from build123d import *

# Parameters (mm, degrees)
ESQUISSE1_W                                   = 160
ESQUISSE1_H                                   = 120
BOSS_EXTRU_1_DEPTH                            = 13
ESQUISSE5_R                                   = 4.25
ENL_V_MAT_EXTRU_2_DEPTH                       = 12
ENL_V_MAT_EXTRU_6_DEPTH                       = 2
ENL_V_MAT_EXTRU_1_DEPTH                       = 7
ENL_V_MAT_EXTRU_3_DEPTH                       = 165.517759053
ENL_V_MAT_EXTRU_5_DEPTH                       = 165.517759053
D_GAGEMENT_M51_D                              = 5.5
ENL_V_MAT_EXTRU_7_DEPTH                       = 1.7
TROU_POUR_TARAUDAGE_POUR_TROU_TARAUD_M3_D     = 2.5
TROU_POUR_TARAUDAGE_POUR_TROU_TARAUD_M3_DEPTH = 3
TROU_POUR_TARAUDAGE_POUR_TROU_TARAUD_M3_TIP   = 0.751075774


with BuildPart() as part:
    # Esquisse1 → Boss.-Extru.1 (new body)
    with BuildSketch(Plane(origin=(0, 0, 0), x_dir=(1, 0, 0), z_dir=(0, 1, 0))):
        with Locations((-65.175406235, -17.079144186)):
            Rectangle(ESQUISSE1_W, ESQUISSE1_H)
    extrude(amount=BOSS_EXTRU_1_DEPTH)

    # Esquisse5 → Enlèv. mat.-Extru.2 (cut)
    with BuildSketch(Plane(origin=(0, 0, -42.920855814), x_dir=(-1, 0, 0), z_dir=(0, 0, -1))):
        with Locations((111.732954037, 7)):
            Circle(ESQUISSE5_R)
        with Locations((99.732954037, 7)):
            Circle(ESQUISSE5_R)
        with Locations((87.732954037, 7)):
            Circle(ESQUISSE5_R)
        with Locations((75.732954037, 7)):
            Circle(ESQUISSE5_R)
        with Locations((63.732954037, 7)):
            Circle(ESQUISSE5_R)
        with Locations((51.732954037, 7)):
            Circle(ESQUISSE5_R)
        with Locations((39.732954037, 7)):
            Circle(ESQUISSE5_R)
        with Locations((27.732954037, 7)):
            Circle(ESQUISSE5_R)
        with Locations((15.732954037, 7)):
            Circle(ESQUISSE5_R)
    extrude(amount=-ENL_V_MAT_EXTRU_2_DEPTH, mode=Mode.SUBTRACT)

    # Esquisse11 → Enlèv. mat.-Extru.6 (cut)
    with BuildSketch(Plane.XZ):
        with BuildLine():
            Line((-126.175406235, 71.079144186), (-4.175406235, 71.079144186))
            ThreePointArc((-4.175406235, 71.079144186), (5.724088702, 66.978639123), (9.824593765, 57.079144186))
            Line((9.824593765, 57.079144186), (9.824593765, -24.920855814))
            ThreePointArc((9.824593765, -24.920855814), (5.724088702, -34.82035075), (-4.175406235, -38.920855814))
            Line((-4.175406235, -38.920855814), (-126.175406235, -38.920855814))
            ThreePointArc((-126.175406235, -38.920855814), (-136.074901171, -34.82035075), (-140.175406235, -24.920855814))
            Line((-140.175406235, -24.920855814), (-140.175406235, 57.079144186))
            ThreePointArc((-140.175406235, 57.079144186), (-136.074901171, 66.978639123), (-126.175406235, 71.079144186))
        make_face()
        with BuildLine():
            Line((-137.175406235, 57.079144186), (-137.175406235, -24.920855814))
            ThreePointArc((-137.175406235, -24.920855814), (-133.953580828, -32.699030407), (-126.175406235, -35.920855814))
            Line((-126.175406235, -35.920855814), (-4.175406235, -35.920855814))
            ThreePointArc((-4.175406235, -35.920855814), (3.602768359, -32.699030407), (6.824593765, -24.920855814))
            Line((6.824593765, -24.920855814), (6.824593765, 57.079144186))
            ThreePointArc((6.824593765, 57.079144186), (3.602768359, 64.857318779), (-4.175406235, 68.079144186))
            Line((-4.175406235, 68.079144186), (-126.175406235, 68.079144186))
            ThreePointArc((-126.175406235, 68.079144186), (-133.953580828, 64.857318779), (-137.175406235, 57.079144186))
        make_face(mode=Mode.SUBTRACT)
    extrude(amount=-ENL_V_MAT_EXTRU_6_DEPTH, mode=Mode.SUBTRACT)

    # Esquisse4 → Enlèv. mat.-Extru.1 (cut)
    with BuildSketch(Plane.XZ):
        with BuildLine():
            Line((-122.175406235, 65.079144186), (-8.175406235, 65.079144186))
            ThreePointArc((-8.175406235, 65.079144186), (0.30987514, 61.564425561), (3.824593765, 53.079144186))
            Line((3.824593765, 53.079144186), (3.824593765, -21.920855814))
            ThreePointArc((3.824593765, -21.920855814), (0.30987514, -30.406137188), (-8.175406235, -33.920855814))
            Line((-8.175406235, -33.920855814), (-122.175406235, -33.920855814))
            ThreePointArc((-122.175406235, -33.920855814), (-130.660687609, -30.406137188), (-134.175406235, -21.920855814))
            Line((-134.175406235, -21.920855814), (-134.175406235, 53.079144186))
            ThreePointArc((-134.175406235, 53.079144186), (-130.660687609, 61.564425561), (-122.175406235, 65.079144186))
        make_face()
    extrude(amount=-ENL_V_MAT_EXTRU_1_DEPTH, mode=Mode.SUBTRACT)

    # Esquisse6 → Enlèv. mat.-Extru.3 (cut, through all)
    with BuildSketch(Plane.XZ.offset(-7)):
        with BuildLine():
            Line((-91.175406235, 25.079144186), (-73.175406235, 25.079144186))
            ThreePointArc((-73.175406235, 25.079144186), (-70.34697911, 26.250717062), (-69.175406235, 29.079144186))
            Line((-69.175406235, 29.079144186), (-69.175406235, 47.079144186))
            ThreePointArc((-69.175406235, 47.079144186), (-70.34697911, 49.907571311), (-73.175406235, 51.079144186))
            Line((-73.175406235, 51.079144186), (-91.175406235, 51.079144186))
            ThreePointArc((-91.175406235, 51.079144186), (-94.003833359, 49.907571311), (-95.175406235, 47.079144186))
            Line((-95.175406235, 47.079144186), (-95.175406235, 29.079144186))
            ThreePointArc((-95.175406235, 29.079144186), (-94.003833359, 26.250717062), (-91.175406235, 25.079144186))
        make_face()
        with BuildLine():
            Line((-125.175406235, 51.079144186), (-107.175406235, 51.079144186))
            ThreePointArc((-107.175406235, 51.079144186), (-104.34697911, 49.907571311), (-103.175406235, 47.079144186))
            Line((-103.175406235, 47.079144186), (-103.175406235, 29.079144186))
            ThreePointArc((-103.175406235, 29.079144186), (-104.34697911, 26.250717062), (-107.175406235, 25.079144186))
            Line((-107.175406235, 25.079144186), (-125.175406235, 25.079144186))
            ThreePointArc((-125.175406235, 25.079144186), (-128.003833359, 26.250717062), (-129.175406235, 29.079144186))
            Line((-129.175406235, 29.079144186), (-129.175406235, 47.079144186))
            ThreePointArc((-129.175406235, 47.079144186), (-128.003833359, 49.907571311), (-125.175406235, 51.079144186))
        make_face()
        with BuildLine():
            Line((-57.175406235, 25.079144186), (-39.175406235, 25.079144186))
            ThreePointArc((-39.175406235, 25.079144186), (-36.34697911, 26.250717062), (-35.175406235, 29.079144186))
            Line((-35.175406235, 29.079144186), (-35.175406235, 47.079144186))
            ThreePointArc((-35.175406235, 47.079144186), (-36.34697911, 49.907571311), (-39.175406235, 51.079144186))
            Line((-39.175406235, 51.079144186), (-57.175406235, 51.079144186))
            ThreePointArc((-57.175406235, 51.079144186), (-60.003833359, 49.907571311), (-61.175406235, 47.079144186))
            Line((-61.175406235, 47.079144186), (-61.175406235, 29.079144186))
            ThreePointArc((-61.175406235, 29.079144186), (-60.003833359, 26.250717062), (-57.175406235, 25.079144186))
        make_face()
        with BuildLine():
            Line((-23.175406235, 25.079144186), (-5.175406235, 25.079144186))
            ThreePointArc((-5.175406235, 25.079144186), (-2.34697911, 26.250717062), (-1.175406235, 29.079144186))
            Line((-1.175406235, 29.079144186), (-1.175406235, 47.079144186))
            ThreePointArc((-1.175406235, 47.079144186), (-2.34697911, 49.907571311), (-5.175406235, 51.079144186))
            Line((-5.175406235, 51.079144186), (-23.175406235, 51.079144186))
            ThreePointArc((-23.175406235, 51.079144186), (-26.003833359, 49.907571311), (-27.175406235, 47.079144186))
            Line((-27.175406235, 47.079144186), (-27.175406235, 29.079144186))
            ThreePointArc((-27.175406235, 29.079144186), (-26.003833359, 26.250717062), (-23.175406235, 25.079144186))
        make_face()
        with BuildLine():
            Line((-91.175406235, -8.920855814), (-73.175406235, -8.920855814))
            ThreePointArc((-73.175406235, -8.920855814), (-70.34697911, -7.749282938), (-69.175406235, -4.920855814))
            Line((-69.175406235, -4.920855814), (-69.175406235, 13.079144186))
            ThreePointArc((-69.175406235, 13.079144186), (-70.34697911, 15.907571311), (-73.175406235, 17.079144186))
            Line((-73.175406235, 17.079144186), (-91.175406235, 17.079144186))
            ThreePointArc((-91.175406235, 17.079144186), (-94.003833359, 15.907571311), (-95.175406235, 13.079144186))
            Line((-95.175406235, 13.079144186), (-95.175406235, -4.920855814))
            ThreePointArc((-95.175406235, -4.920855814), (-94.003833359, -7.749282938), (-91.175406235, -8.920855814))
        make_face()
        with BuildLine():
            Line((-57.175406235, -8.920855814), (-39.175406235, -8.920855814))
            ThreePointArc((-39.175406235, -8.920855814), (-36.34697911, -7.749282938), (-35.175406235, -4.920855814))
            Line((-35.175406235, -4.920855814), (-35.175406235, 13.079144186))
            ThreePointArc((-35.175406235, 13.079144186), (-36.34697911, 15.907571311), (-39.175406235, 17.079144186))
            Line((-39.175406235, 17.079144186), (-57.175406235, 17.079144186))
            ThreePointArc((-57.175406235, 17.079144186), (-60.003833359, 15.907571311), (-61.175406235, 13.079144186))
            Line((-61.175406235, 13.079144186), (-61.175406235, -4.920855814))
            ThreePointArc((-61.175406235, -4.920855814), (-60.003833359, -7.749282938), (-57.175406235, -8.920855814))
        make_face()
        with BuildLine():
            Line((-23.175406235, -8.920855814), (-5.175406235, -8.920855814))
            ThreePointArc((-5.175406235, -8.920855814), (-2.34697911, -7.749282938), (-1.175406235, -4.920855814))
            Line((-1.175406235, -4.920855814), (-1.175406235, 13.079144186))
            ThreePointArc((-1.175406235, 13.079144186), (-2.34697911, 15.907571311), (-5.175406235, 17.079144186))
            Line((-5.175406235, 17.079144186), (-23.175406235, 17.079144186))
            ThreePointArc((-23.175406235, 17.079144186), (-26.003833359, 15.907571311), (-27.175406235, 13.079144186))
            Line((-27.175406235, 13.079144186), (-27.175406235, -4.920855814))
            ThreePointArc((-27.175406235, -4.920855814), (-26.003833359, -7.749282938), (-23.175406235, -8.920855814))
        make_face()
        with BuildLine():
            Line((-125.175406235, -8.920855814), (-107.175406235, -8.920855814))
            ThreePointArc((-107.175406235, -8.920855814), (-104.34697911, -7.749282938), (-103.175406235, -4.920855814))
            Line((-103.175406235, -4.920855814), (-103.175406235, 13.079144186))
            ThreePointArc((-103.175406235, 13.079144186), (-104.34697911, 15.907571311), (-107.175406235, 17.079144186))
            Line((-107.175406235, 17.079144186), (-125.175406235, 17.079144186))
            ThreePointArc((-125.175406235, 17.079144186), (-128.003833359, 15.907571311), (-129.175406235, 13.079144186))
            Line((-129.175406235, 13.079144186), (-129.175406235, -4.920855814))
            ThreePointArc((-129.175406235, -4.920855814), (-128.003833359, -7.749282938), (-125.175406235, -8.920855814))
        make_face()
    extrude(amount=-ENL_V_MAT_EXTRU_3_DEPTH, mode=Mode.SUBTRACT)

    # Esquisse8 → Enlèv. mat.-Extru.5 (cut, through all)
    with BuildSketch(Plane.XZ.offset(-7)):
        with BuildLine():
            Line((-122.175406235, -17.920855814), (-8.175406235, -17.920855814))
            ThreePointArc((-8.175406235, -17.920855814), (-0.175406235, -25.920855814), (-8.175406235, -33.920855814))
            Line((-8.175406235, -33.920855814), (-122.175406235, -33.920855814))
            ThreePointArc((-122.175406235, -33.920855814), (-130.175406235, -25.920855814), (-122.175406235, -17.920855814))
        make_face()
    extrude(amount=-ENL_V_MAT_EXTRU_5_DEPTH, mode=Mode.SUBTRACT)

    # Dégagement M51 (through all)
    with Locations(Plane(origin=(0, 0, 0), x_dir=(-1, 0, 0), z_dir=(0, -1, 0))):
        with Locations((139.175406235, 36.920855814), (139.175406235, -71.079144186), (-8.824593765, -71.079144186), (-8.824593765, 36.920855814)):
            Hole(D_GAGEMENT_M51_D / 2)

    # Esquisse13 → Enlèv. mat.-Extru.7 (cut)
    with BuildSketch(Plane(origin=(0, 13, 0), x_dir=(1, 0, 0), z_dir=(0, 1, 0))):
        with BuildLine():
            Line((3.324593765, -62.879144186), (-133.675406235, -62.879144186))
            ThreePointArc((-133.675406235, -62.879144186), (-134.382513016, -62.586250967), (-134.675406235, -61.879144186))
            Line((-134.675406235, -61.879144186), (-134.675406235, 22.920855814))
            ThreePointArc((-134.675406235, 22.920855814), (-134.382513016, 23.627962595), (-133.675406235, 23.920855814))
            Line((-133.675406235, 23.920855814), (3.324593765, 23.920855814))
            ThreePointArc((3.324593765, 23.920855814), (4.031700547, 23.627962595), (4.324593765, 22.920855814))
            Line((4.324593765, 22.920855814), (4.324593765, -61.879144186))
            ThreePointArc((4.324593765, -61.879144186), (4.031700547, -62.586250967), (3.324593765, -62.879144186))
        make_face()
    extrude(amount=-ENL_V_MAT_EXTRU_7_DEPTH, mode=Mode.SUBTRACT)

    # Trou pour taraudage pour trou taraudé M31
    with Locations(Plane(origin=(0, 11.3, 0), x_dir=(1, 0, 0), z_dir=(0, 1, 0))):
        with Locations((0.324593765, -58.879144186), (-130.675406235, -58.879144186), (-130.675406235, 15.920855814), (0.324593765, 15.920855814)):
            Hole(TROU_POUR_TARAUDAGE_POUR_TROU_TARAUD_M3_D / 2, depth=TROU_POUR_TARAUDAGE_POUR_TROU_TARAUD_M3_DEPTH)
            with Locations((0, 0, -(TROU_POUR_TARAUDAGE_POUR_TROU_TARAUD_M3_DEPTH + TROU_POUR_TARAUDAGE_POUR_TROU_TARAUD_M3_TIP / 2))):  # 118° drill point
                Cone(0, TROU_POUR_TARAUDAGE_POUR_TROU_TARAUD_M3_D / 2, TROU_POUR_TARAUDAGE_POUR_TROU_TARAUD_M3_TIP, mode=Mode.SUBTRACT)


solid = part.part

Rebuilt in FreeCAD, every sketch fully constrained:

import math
import FreeCAD as App
import Part
import Sketcher
Q = App.Units.Quantity


def add_polygon(sketch, points):
    """Adds a closed chain of lines whose ends are joined by coincident constraints."""
    first, n = sketch.GeometryCount, len(points)
    for a, b in zip(points, points[1:] + points[:1]):
        sketch.addGeometry(Part.LineSegment(App.Vector(*a, 0), App.Vector(*b, 0)), False)
    for i in range(n):
        sketch.addConstraint(Sketcher.Constraint("Coincident", first + i, 2, first + (i + 1) % n, 1))

doc = App.newDocument("Part")
params = doc.addObject("Spreadsheet::Sheet", "Params")
for row, (alias, value) in enumerate([
    ("sketch1_width", "160 mm"),
    ("sketch1_height", "120 mm"),
    ("pad1_length", "13 mm"),
    ("sketch2_diameter", "8.5 mm"),
    ("pocket1_length", "12 mm"),
    ("sketch3_radius", "14 mm"),
    ("sketch3_radius2", "11 mm"),
    ("sketch3_width", "122 mm"),
    ("sketch3_height", "82 mm"),
    ("pocket2_length", "2 mm"),
    ("sketch4_radius", "12 mm"),
    ("sketch4_width", "114 mm"),
    ("sketch4_height", "75 mm"),
    ("pocket3_length", "7 mm"),
    ("sketch5_radius", "4 mm"),
    ("sketch5_width", "18 mm"),
    ("sketch6_radius", "8 mm"),
    ("sketch6_width", "114 mm"),
    ("sketch7_diameter", "5.5 mm"),
    ("hole_diameter", "5.5 mm"),
    ("sketch8_radius", "1 mm"),
    ("sketch8_width", "137 mm"),
    ("sketch8_height", "84.8 mm"),
    ("pocket6_length", "1.7 mm"),
    ("sketch9_diameter", "2.5 mm"),
    ("hole2_diameter", "2.5 mm"),
    ("hole2_depth", "3 mm"),
], start=1):
    params.set(f"A{row}", alias)
    params.set(f"B{row}", "=" + value)
    params.setAlias(f"B{row}", alias)

body = doc.addObject("PartDesign::Body", "Body")

# Sketch on XZ plane
sketch1 = doc.addObject("Sketcher::SketchObject", "Sketch")
body.addObject(sketch1)
sketch1.AttachmentSupport = (doc.XZ_Plane, [""])
sketch1.MapMode = "FlatFace"
add_polygon(sketch1, [(-145.175406, -42.920856), (-145.175406, 77.079144), (14.824594, 77.079144), (14.824594, -42.920856)])  # lines 0-3
sketch1.addConstraint([
    Sketcher.Constraint("Vertical", 0),
    Sketcher.Constraint("Horizontal", 1),
    Sketcher.Constraint("Vertical", 2),
    Sketcher.Constraint("Horizontal", 3),
    Sketcher.Constraint("DistanceX", 1, 1, 1, 2, Q("160 mm")),
    Sketcher.Constraint("DistanceY", 0, 1, 0, 2, Q("120 mm")),
    Sketcher.Constraint("DistanceX", 0, 2, -1, 1, Q("145.175406 mm")),
    Sketcher.Constraint("DistanceY", -1, 1, 0, 2, Q("77.079144 mm")),
])
sketch1.setExpression("Constraints[8]", "Params.sketch1_width")
sketch1.setExpression("Constraints[9]", "Params.sketch1_height")
pad1 = doc.addObject("PartDesign::Pad", "Pad")
body.addObject(pad1)
pad1.Profile = sketch1
pad1.setExpression("Length", "Params.pad1_length")
pad1.Reversed = True

# Sketch on XY plane
sketch2 = doc.addObject("Sketcher::SketchObject", "Sketch001")
body.addObject(sketch2)
sketch2.AttachmentSupport = (doc.XY_Plane, [""])
sketch2.MapMode = "FlatFace"
sketch2.AttachmentOffset = App.Placement(App.Vector(0, 0, -42.920856), App.Rotation())
sketch2.addGeometry([
    Part.Circle(App.Vector(-111.732954, 7, 0), App.Vector(0, 0, 1), 4.25),  # 0
    Part.Circle(App.Vector(-99.732954, 7, 0), App.Vector(0, 0, 1), 4.25),  # 1
    Part.Circle(App.Vector(-87.732954, 7, 0), App.Vector(0, 0, 1), 4.25),  # 2
    Part.Circle(App.Vector(-75.732954, 7, 0), App.Vector(0, 0, 1), 4.25),  # 3
    Part.Circle(App.Vector(-63.732954, 7, 0), App.Vector(0, 0, 1), 4.25),  # 4
    Part.Circle(App.Vector(-51.732954, 7, 0), App.Vector(0, 0, 1), 4.25),  # 5
    Part.Circle(App.Vector(-39.732954, 7, 0), App.Vector(0, 0, 1), 4.25),  # 6
    Part.Circle(App.Vector(-27.732954, 7, 0), App.Vector(0, 0, 1), 4.25),  # 7
    Part.Circle(App.Vector(-15.732954, 7, 0), App.Vector(0, 0, 1), 4.25),  # 8
], False)
sketch2.addConstraint([
    Sketcher.Constraint("Equal", 0, 1),
    Sketcher.Constraint("Equal", 1, 2),
    Sketcher.Constraint("Equal", 2, 3),
    Sketcher.Constraint("Equal", 3, 4),
    Sketcher.Constraint("Equal", 4, 5),
    Sketcher.Constraint("Equal", 5, 6),
    Sketcher.Constraint("Equal", 6, 7),
    Sketcher.Constraint("Equal", 7, 8),
    Sketcher.Constraint("Horizontal", 0, 3, 1, 3),
    Sketcher.Constraint("Horizontal", 1, 3, 2, 3),
    Sketcher.Constraint("Horizontal", 2, 3, 3, 3),
    Sketcher.Constraint("Horizontal", 3, 3, 4, 3),
    Sketcher.Constraint("Horizontal", 4, 3, 5, 3),
    Sketcher.Constraint("Horizontal", 5, 3, 6, 3),
    Sketcher.Constraint("Horizontal", 6, 3, 7, 3),
    Sketcher.Constraint("Horizontal", 7, 3, 8, 3),
    Sketcher.Constraint("Diameter", 0, Q("8.5 mm")),
    Sketcher.Constraint("DistanceY", -1, 1, 0, 3, Q("7 mm")),
    Sketcher.Constraint("DistanceX", 0, 3, 1, 3, Q("12 mm")),
    Sketcher.Constraint("DistanceX", 1, 3, 2, 3, Q("12 mm")),
    Sketcher.Constraint("DistanceX", 2, 3, 3, 3, Q("12 mm")),
    Sketcher.Constraint("DistanceX", 3, 3, 4, 3, Q("12 mm")),
    Sketcher.Constraint("DistanceX", 4, 3, 5, 3, Q("12 mm")),
    Sketcher.Constraint("DistanceX", 5, 3, 6, 3, Q("12 mm")),
    Sketcher.Constraint("DistanceX", 6, 3, 7, 3, Q("12 mm")),
    Sketcher.Constraint("DistanceX", 7, 3, 8, 3, Q("12 mm")),
    Sketcher.Constraint("DistanceX", 0, 3, -1, 1, Q("111.732954 mm")),
])
sketch2.setExpression("Constraints[16]", "Params.sketch2_diameter")
pocket1 = doc.addObject("PartDesign::Pocket", "Pocket")
body.addObject(pocket1)
pocket1.Profile = sketch2
pocket1.setExpression("Length", "Params.pocket1_length")
pocket1.Reversed = True

# Sketch on XZ plane
sketch3 = doc.addObject("Sketcher::SketchObject", "Sketch002")
body.addObject(sketch3)
sketch3.AttachmentSupport = (doc.XZ_Plane, [""])
sketch3.MapMode = "FlatFace"
sketch3.addGeometry([
    Part.LineSegment(App.Vector(-4.175406, 71.079144, 0), App.Vector(-126.175406, 71.079144, 0)),  # 0
    Part.ArcOfCircle(Part.Circle(App.Vector(-126.175406, 57.079144, 0), App.Vector(0, 0, 1), 14), math.radians(90), math.radians(180)),  # 1
    Part.LineSegment(App.Vector(-140.175406, 57.079144, 0), App.Vector(-140.175406, -24.920856, 0)),  # 2
    Part.ArcOfCircle(Part.Circle(App.Vector(-126.175406, -24.920856, 0), App.Vector(0, 0, 1), 14), math.radians(-180), math.radians(-90)),  # 3
    Part.LineSegment(App.Vector(-126.175406, -38.920856, 0), App.Vector(-4.175406, -38.920856, 0)),  # 4
    Part.ArcOfCircle(Part.Circle(App.Vector(-4.175406, -24.920856, 0), App.Vector(0, 0, 1), 14), math.radians(-90), math.radians(0)),  # 5
    Part.LineSegment(App.Vector(9.824594, -24.920856, 0), App.Vector(9.824594, 57.079144, 0)),  # 6
    Part.ArcOfCircle(Part.Circle(App.Vector(-4.175406, 57.079144, 0), App.Vector(0, 0, 1), 14), math.radians(0), math.radians(90)),  # 7
    Part.ArcOfCircle(Part.Circle(App.Vector(-126.175406, 57.079144, 0), App.Vector(0, 0, 1), 11), math.radians(90), math.radians(180)),  # 8
    Part.LineSegment(App.Vector(-126.175406, 68.079144, 0), App.Vector(-4.175406, 68.079144, 0)),  # 9
    Part.ArcOfCircle(Part.Circle(App.Vector(-4.175406, 57.079144, 0), App.Vector(0, 0, 1), 11), math.radians(0), math.radians(90)),  # 10
    Part.LineSegment(App.Vector(6.824594, 57.079144, 0), App.Vector(6.824594, -24.920856, 0)),  # 11
    Part.ArcOfCircle(Part.Circle(App.Vector(-4.175406, -24.920856, 0), App.Vector(0, 0, 1), 11), math.radians(-90), math.radians(0)),  # 12
    Part.LineSegment(App.Vector(-4.175406, -35.920856, 0), App.Vector(-126.175406, -35.920856, 0)),  # 13
    Part.ArcOfCircle(Part.Circle(App.Vector(-126.175406, -24.920856, 0), App.Vector(0, 0, 1), 11), math.radians(180), math.radians(270)),  # 14
    Part.LineSegment(App.Vector(-137.175406, -24.920856, 0), App.Vector(-137.175406, 57.079144, 0)),  # 15
], False)
sketch3.addConstraint([
    Sketcher.Constraint("Tangent", 0, 2, 1, 1),
    Sketcher.Constraint("Tangent", 1, 2, 2, 1),
    Sketcher.Constraint("Tangent", 2, 2, 3, 1),
    Sketcher.Constraint("Tangent", 3, 2, 4, 1),
    Sketcher.Constraint("Tangent", 4, 2, 5, 1),
    Sketcher.Constraint("Tangent", 5, 2, 6, 1),
    Sketcher.Constraint("Tangent", 6, 2, 7, 1),
    Sketcher.Constraint("Tangent", 7, 2, 0, 1),
    Sketcher.Constraint("Tangent", 8, 1, 9, 1),
    Sketcher.Constraint("Tangent", 9, 2, 10, 2),
    Sketcher.Constraint("Tangent", 10, 1, 11, 1),
    Sketcher.Constraint("Tangent", 11, 2, 12, 2),
    Sketcher.Constraint("Tangent", 12, 1, 13, 1),
    Sketcher.Constraint("Tangent", 13, 2, 14, 2),
    Sketcher.Constraint("Tangent", 14, 1, 15, 1),
    Sketcher.Constraint("Tangent", 15, 2, 8, 2),
    Sketcher.Constraint("Horizontal", 0),
    Sketcher.Constraint("Vertical", 2),
    Sketcher.Constraint("Horizontal", 4),
    Sketcher.Constraint("Vertical", 6),
    Sketcher.Constraint("Horizontal", 9),
    Sketcher.Constraint("Vertical", 11),
    Sketcher.Constraint("Horizontal", 13),
    Sketcher.Constraint("Vertical", 15),
    Sketcher.Constraint("Coincident", 8, 3, 1, 3),
    Sketcher.Constraint("Coincident", 10, 3, 7, 3),
    Sketcher.Constraint("Coincident", 12, 3, 5, 3),
    Sketcher.Constraint("Equal", 1, 3),
    Sketcher.Constraint("Equal", 3, 5),
    Sketcher.Constraint("Equal", 5, 7),
    Sketcher.Constraint("Equal", 12, 14),
    Sketcher.Constraint("Radius", 1, Q("14 mm")),
    Sketcher.Constraint("Radius", 8, Q("11 mm")),
    Sketcher.Constraint("DistanceX", 0, 2, 0, 1, Q("122 mm")),
    Sketcher.Constraint("DistanceY", 2, 2, 2, 1, Q("82 mm")),
    Sketcher.Constraint("DistanceX", 1, 3, -1, 1, Q("126.175406 mm")),
    Sketcher.Constraint("DistanceY", -1, 1, 1, 3, Q("57.079144 mm")),
])
sketch3.setExpression("Constraints[31]", "Params.sketch3_radius")
sketch3.setExpression("Constraints[32]", "Params.sketch3_radius2")
sketch3.setExpression("Constraints[33]", "Params.sketch3_width")
sketch3.setExpression("Constraints[34]", "Params.sketch3_height")
pocket2 = doc.addObject("PartDesign::Pocket", "Pocket001")
body.addObject(pocket2)
pocket2.Profile = sketch3
pocket2.setExpression("Length", "Params.pocket2_length")

# Sketch on XZ plane
sketch4 = doc.addObject("Sketcher::SketchObject", "Sketch003")
body.addObject(sketch4)
sketch4.AttachmentSupport = (doc.XZ_Plane, [""])
sketch4.MapMode = "FlatFace"
sketch4.addGeometry([
    Part.LineSegment(App.Vector(-8.175406, 65.079144, 0), App.Vector(-122.175406, 65.079144, 0)),  # 0
    Part.ArcOfCircle(Part.Circle(App.Vector(-122.175406, 53.079144, 0), App.Vector(0, 0, 1), 12), math.radians(90), math.radians(180)),  # 1
    Part.LineSegment(App.Vector(-134.175406, 53.079144, 0), App.Vector(-134.175406, -21.920856, 0)),  # 2
    Part.ArcOfCircle(Part.Circle(App.Vector(-122.175406, -21.920856, 0), App.Vector(0, 0, 1), 12), math.radians(-180), math.radians(-90)),  # 3
    Part.LineSegment(App.Vector(-122.175406, -33.920856, 0), App.Vector(-8.175406, -33.920856, 0)),  # 4
    Part.ArcOfCircle(Part.Circle(App.Vector(-8.175406, -21.920856, 0), App.Vector(0, 0, 1), 12), math.radians(-90), math.radians(0)),  # 5
    Part.LineSegment(App.Vector(3.824594, -21.920856, 0), App.Vector(3.824594, 53.079144, 0)),  # 6
    Part.ArcOfCircle(Part.Circle(App.Vector(-8.175406, 53.079144, 0), App.Vector(0, 0, 1), 12), math.radians(0), math.radians(90)),  # 7
], False)
sketch4.addConstraint([
    Sketcher.Constraint("Tangent", 0, 2, 1, 1),
    Sketcher.Constraint("Tangent", 1, 2, 2, 1),
    Sketcher.Constraint("Tangent", 2, 2, 3, 1),
    Sketcher.Constraint("Tangent", 3, 2, 4, 1),
    Sketcher.Constraint("Tangent", 4, 2, 5, 1),
    Sketcher.Constraint("Tangent", 5, 2, 6, 1),
    Sketcher.Constraint("Tangent", 6, 2, 7, 1),
    Sketcher.Constraint("Tangent", 7, 2, 0, 1),
    Sketcher.Constraint("Horizontal", 0),
    Sketcher.Constraint("Vertical", 2),
    Sketcher.Constraint("Horizontal", 4),
    Sketcher.Constraint("Vertical", 6),
    Sketcher.Constraint("Equal", 1, 3),
    Sketcher.Constraint("Equal", 3, 5),
    Sketcher.Constraint("Equal", 5, 7),
    Sketcher.Constraint("Radius", 1, Q("12 mm")),
    Sketcher.Constraint("DistanceX", 0, 2, 0, 1, Q("114 mm")),
    Sketcher.Constraint("DistanceY", 2, 2, 2, 1, Q("75 mm")),
    Sketcher.Constraint("DistanceX", 1, 3, -1, 1, Q("122.175406 mm")),
    Sketcher.Constraint("DistanceY", -1, 1, 1, 3, Q("53.079144 mm")),
])
sketch4.setExpression("Constraints[15]", "Params.sketch4_radius")
sketch4.setExpression("Constraints[16]", "Params.sketch4_width")
sketch4.setExpression("Constraints[17]", "Params.sketch4_height")
pocket3 = doc.addObject("PartDesign::Pocket", "Pocket002")
body.addObject(pocket3)
pocket3.Profile = sketch4
pocket3.setExpression("Length", "Params.pocket3_length")

# Sketch on XZ plane
sketch5 = doc.addObject("Sketcher::SketchObject", "Sketch004")
body.addObject(sketch5)
sketch5.AttachmentSupport = (doc.XZ_Plane, [""])
sketch5.MapMode = "FlatFace"
sketch5.AttachmentOffset = App.Placement(App.Vector(0, 0, -7), App.Rotation())
sketch5.addGeometry([
    Part.LineSegment(App.Vector(-91.175406, 25.079144, 0), App.Vector(-73.175406, 25.079144, 0)),  # 0
    Part.ArcOfCircle(Part.Circle(App.Vector(-73.175406, 29.079144, 0), App.Vector(0, 0, 1), 4), math.radians(-90), math.radians(0)),  # 1
    Part.LineSegment(App.Vector(-69.175406, 29.079144, 0), App.Vector(-69.175406, 47.079144, 0)),  # 2
    Part.ArcOfCircle(Part.Circle(App.Vector(-73.175406, 47.079144, 0), App.Vector(0, 0, 1), 4), math.radians(0), math.radians(90)),  # 3
    Part.LineSegment(App.Vector(-73.175406, 51.079144, 0), App.Vector(-91.175406, 51.079144, 0)),  # 4
    Part.ArcOfCircle(Part.Circle(App.Vector(-91.175406, 47.079144, 0), App.Vector(0, 0, 1), 4), math.radians(90), math.radians(180)),  # 5
    Part.LineSegment(App.Vector(-95.175406, 47.079144, 0), App.Vector(-95.175406, 29.079144, 0)),  # 6
    Part.ArcOfCircle(Part.Circle(App.Vector(-91.175406, 29.079144, 0), App.Vector(0, 0, 1), 4), math.radians(-180), math.radians(-90)),  # 7
    Part.LineSegment(App.Vector(-107.175406, 51.079144, 0), App.Vector(-125.175406, 51.079144, 0)),  # 8
    Part.ArcOfCircle(Part.Circle(App.Vector(-125.175406, 47.079144, 0), App.Vector(0, 0, 1), 4), math.radians(90), math.radians(180)),  # 9
    Part.LineSegment(App.Vector(-129.175406, 47.079144, 0), App.Vector(-129.175406, 29.079144, 0)),  # 10
    Part.ArcOfCircle(Part.Circle(App.Vector(-125.175406, 29.079144, 0), App.Vector(0, 0, 1), 4), math.radians(-180), math.radians(-90)),  # 11
    Part.LineSegment(App.Vector(-125.175406, 25.079144, 0), App.Vector(-107.175406, 25.079144, 0)),  # 12
    Part.ArcOfCircle(Part.Circle(App.Vector(-107.175406, 29.079144, 0), App.Vector(0, 0, 1), 4), math.radians(-90), math.radians(0)),  # 13
    Part.LineSegment(App.Vector(-103.175406, 29.079144, 0), App.Vector(-103.175406, 47.079144, 0)),  # 14
    Part.ArcOfCircle(Part.Circle(App.Vector(-107.175406, 47.079144, 0), App.Vector(0, 0, 1), 4), math.radians(0), math.radians(90)),  # 15
    Part.LineSegment(App.Vector(-57.175406, 25.079144, 0), App.Vector(-39.175406, 25.079144, 0)),  # 16
    Part.ArcOfCircle(Part.Circle(App.Vector(-39.175406, 29.079144, 0), App.Vector(0, 0, 1), 4), math.radians(-90), math.radians(0)),  # 17
    Part.LineSegment(App.Vector(-35.175406, 29.079144, 0), App.Vector(-35.175406, 47.079144, 0)),  # 18
    Part.ArcOfCircle(Part.Circle(App.Vector(-39.175406, 47.079144, 0), App.Vector(0, 0, 1), 4), math.radians(0), math.radians(90)),  # 19
    Part.LineSegment(App.Vector(-39.175406, 51.079144, 0), App.Vector(-57.175406, 51.079144, 0)),  # 20
    Part.ArcOfCircle(Part.Circle(App.Vector(-57.175406, 47.079144, 0), App.Vector(0, 0, 1), 4), math.radians(90), math.radians(180)),  # 21
    Part.LineSegment(App.Vector(-61.175406, 47.079144, 0), App.Vector(-61.175406, 29.079144, 0)),  # 22
    Part.ArcOfCircle(Part.Circle(App.Vector(-57.175406, 29.079144, 0), App.Vector(0, 0, 1), 4), math.radians(-180), math.radians(-90)),  # 23
    Part.LineSegment(App.Vector(-23.175406, 25.079144, 0), App.Vector(-5.175406, 25.079144, 0)),  # 24
    Part.ArcOfCircle(Part.Circle(App.Vector(-5.175406, 29.079144, 0), App.Vector(0, 0, 1), 4), math.radians(-90), math.radians(0)),  # 25
    Part.LineSegment(App.Vector(-1.175406, 29.079144, 0), App.Vector(-1.175406, 47.079144, 0)),  # 26
    Part.ArcOfCircle(Part.Circle(App.Vector(-5.175406, 47.079144, 0), App.Vector(0, 0, 1), 4), math.radians(0), math.radians(90)),  # 27
    Part.LineSegment(App.Vector(-5.175406, 51.079144, 0), App.Vector(-23.175406, 51.079144, 0)),  # 28
    Part.ArcOfCircle(Part.Circle(App.Vector(-23.175406, 47.079144, 0), App.Vector(0, 0, 1), 4), math.radians(90), math.radians(180)),  # 29
    Part.LineSegment(App.Vector(-27.175406, 47.079144, 0), App.Vector(-27.175406, 29.079144, 0)),  # 30
    Part.ArcOfCircle(Part.Circle(App.Vector(-23.175406, 29.079144, 0), App.Vector(0, 0, 1), 4), math.radians(-180), math.radians(-90)),  # 31
    Part.LineSegment(App.Vector(-91.175406, -8.920856, 0), App.Vector(-73.175406, -8.920856, 0)),  # 32
    Part.ArcOfCircle(Part.Circle(App.Vector(-73.175406, -4.920856, 0), App.Vector(0, 0, 1), 4), math.radians(-90), math.radians(0)),  # 33
    Part.LineSegment(App.Vector(-69.175406, -4.920856, 0), App.Vector(-69.175406, 13.079144, 0)),  # 34
    Part.ArcOfCircle(Part.Circle(App.Vector(-73.175406, 13.079144, 0), App.Vector(0, 0, 1), 4), math.radians(0), math.radians(90)),  # 35
    Part.LineSegment(App.Vector(-73.175406, 17.079144, 0), App.Vector(-91.175406, 17.079144, 0)),  # 36
    Part.ArcOfCircle(Part.Circle(App.Vector(-91.175406, 13.079144, 0), App.Vector(0, 0, 1), 4), math.radians(90), math.radians(180)),  # 37
    Part.LineSegment(App.Vector(-95.175406, 13.079144, 0), App.Vector(-95.175406, -4.920856, 0)),  # 38
    Part.ArcOfCircle(Part.Circle(App.Vector(-91.175406, -4.920856, 0), App.Vector(0, 0, 1), 4), math.radians(-180), math.radians(-90)),  # 39
    Part.LineSegment(App.Vector(-57.175406, -8.920856, 0), App.Vector(-39.175406, -8.920856, 0)),  # 40
    Part.ArcOfCircle(Part.Circle(App.Vector(-39.175406, -4.920856, 0), App.Vector(0, 0, 1), 4), math.radians(-90), math.radians(0)),  # 41
    Part.LineSegment(App.Vector(-35.175406, -4.920856, 0), App.Vector(-35.175406, 13.079144, 0)),  # 42
    Part.ArcOfCircle(Part.Circle(App.Vector(-39.175406, 13.079144, 0), App.Vector(0, 0, 1), 4), math.radians(0), math.radians(90)),  # 43
    Part.LineSegment(App.Vector(-39.175406, 17.079144, 0), App.Vector(-57.175406, 17.079144, 0)),  # 44
    Part.ArcOfCircle(Part.Circle(App.Vector(-57.175406, 13.079144, 0), App.Vector(0, 0, 1), 4), math.radians(90), math.radians(180)),  # 45
    Part.LineSegment(App.Vector(-61.175406, 13.079144, 0), App.Vector(-61.175406, -4.920856, 0)),  # 46
    Part.ArcOfCircle(Part.Circle(App.Vector(-57.175406, -4.920856, 0), App.Vector(0, 0, 1), 4), math.radians(-180), math.radians(-90)),  # 47
    Part.LineSegment(App.Vector(-23.175406, -8.920856, 0), App.Vector(-5.175406, -8.920856, 0)),  # 48
    Part.ArcOfCircle(Part.Circle(App.Vector(-5.175406, -4.920856, 0), App.Vector(0, 0, 1), 4), math.radians(-90), math.radians(0)),  # 49
    Part.LineSegment(App.Vector(-1.175406, -4.920856, 0), App.Vector(-1.175406, 13.079144, 0)),  # 50
    Part.ArcOfCircle(Part.Circle(App.Vector(-5.175406, 13.079144, 0), App.Vector(0, 0, 1), 4), math.radians(0), math.radians(90)),  # 51
    Part.LineSegment(App.Vector(-5.175406, 17.079144, 0), App.Vector(-23.175406, 17.079144, 0)),  # 52
    Part.ArcOfCircle(Part.Circle(App.Vector(-23.175406, 13.079144, 0), App.Vector(0, 0, 1), 4), math.radians(90), math.radians(180)),  # 53
    Part.LineSegment(App.Vector(-27.175406, 13.079144, 0), App.Vector(-27.175406, -4.920856, 0)),  # 54
    Part.ArcOfCircle(Part.Circle(App.Vector(-23.175406, -4.920856, 0), App.Vector(0, 0, 1), 4), math.radians(-180), math.radians(-90)),  # 55
    Part.LineSegment(App.Vector(-125.175406, -8.920856, 0), App.Vector(-107.175406, -8.920856, 0)),  # 56
    Part.ArcOfCircle(Part.Circle(App.Vector(-107.175406, -4.920856, 0), App.Vector(0, 0, 1), 4), math.radians(-90), math.radians(0)),  # 57
    Part.LineSegment(App.Vector(-103.175406, -4.920856, 0), App.Vector(-103.175406, 13.079144, 0)),  # 58
    Part.ArcOfCircle(Part.Circle(App.Vector(-107.175406, 13.079144, 0), App.Vector(0, 0, 1), 4), math.radians(0), math.radians(90)),  # 59
    Part.LineSegment(App.Vector(-107.175406, 17.079144, 0), App.Vector(-125.175406, 17.079144, 0)),  # 60
    Part.ArcOfCircle(Part.Circle(App.Vector(-125.175406, 13.079144, 0), App.Vector(0, 0, 1), 4), math.radians(90), math.radians(180)),  # 61
    Part.LineSegment(App.Vector(-129.175406, 13.079144, 0), App.Vector(-129.175406, -4.920856, 0)),  # 62
    Part.ArcOfCircle(Part.Circle(App.Vector(-125.175406, -4.920856, 0), App.Vector(0, 0, 1), 4), math.radians(-180), math.radians(-90)),  # 63
], False)
sketch5.addConstraint([
    Sketcher.Constraint("Tangent", 0, 2, 1, 1),
    Sketcher.Constraint("Tangent", 1, 2, 2, 1),
    Sketcher.Constraint("Tangent", 2, 2, 3, 1),
    Sketcher.Constraint("Tangent", 3, 2, 4, 1),
    Sketcher.Constraint("Tangent", 4, 2, 5, 1),
    Sketcher.Constraint("Tangent", 5, 2, 6, 1),
    Sketcher.Constraint("Tangent", 6, 2, 7, 1),
    Sketcher.Constraint("Tangent", 7, 2, 0, 1),
    Sketcher.Constraint("Tangent", 8, 2, 9, 1),
    Sketcher.Constraint("Tangent", 9, 2, 10, 1),
    Sketcher.Constraint("Tangent", 10, 2, 11, 1),
    Sketcher.Constraint("Tangent", 11, 2, 12, 1),
    Sketcher.Constraint("Tangent", 12, 2, 13, 1),
    Sketcher.Constraint("Tangent", 13, 2, 14, 1),
    Sketcher.Constraint("Tangent", 14, 2, 15, 1),
    Sketcher.Constraint("Tangent", 15, 2, 8, 1),
    Sketcher.Constraint("Tangent", 16, 2, 17, 1),
    Sketcher.Constraint("Tangent", 17, 2, 18, 1),
    Sketcher.Constraint("Tangent", 18, 2, 19, 1),
    Sketcher.Constraint("Tangent", 19, 2, 20, 1),
    Sketcher.Constraint("Tangent", 20, 2, 21, 1),
    Sketcher.Constraint("Tangent", 21, 2, 22, 1),
    Sketcher.Constraint("Tangent", 22, 2, 23, 1),
    Sketcher.Constraint("Tangent", 23, 2, 16, 1),
    Sketcher.Constraint("Tangent", 24, 2, 25, 1),
    Sketcher.Constraint("Tangent", 25, 2, 26, 1),
    Sketcher.Constraint("Tangent", 26, 2, 27, 1),
    Sketcher.Constraint("Tangent", 27, 2, 28, 1),
    Sketcher.Constraint("Tangent", 28, 2, 29, 1),
    Sketcher.Constraint("Tangent", 29, 2, 30, 1),
    Sketcher.Constraint("Tangent", 30, 2, 31, 1),
    Sketcher.Constraint("Tangent", 31, 2, 24, 1),
    Sketcher.Constraint("Tangent", 32, 2, 33, 1),
    Sketcher.Constraint("Tangent", 33, 2, 34, 1),
    Sketcher.Constraint("Tangent", 34, 2, 35, 1),
    Sketcher.Constraint("Tangent", 35, 2, 36, 1),
    Sketcher.Constraint("Tangent", 36, 2, 37, 1),
    Sketcher.Constraint("Tangent", 37, 2, 38, 1),
    Sketcher.Constraint("Tangent", 38, 2, 39, 1),
    Sketcher.Constraint("Tangent", 39, 2, 32, 1),
    Sketcher.Constraint("Tangent", 40, 2, 41, 1),
    Sketcher.Constraint("Tangent", 41, 2, 42, 1),
    Sketcher.Constraint("Tangent", 42, 2, 43, 1),
    Sketcher.Constraint("Tangent", 43, 2, 44, 1),
    Sketcher.Constraint("Tangent", 44, 2, 45, 1),
    Sketcher.Constraint("Tangent", 45, 2, 46, 1),
    Sketcher.Constraint("Tangent", 46, 2, 47, 1),
    Sketcher.Constraint("Tangent", 47, 2, 40, 1),
    Sketcher.Constraint("Tangent", 48, 2, 49, 1),
    Sketcher.Constraint("Tangent", 49, 2, 50, 1),
    Sketcher.Constraint("Tangent", 50, 2, 51, 1),
    Sketcher.Constraint("Tangent", 51, 2, 52, 1),
    Sketcher.Constraint("Tangent", 52, 2, 53, 1),
    Sketcher.Constraint("Tangent", 53, 2, 54, 1),
    Sketcher.Constraint("Tangent", 54, 2, 55, 1),
    Sketcher.Constraint("Tangent", 55, 2, 48, 1),
    Sketcher.Constraint("Tangent", 56, 2, 57, 1),
    Sketcher.Constraint("Tangent", 57, 2, 58, 1),
    Sketcher.Constraint("Tangent", 58, 2, 59, 1),
    Sketcher.Constraint("Tangent", 59, 2, 60, 1),
    Sketcher.Constraint("Tangent", 60, 2, 61, 1),
    Sketcher.Constraint("Tangent", 61, 2, 62, 1),
    Sketcher.Constraint("Tangent", 62, 2, 63, 1),
    Sketcher.Constraint("Tangent", 63, 2, 56, 1),
    Sketcher.Constraint("Horizontal", 0),
    Sketcher.Constraint("Vertical", 2),
    Sketcher.Constraint("Horizontal", 4),
    Sketcher.Constraint("Vertical", 6),
    Sketcher.Constraint("Horizontal", 8),
    Sketcher.Constraint("Vertical", 10),
    Sketcher.Constraint("Horizontal", 12),
    Sketcher.Constraint("Vertical", 14),
    Sketcher.Constraint("Horizontal", 16),
    Sketcher.Constraint("Vertical", 18),
    Sketcher.Constraint("Horizontal", 20),
    Sketcher.Constraint("Vertical", 22),
    Sketcher.Constraint("Horizontal", 24),
    Sketcher.Constraint("Vertical", 26),
    Sketcher.Constraint("Horizontal", 28),
    Sketcher.Constraint("Vertical", 30),
    Sketcher.Constraint("Horizontal", 32),
    Sketcher.Constraint("Vertical", 34),
    Sketcher.Constraint("Horizontal", 36),
    Sketcher.Constraint("Vertical", 38),
    Sketcher.Constraint("Horizontal", 40),
    Sketcher.Constraint("Vertical", 42),
    Sketcher.Constraint("Horizontal", 44),
    Sketcher.Constraint("Vertical", 46),
    Sketcher.Constraint("Horizontal", 48),
    Sketcher.Constraint("Vertical", 50),
    Sketcher.Constraint("Horizontal", 52),
    Sketcher.Constraint("Vertical", 54),
    Sketcher.Constraint("Horizontal", 56),
    Sketcher.Constraint("Vertical", 58),
    Sketcher.Constraint("Horizontal", 60),
    Sketcher.Constraint("Vertical", 62),
    Sketcher.Constraint("Equal", 1, 3),
    Sketcher.Constraint("Equal", 3, 5),
    Sketcher.Constraint("Equal", 5, 7),
    Sketcher.Constraint("Equal", 7, 9),
    Sketcher.Constraint("Equal", 9, 11),
    Sketcher.Constraint("Equal", 11, 13),
    Sketcher.Constraint("Equal", 13, 15),
    Sketcher.Constraint("Equal", 15, 17),
    Sketcher.Constraint("Equal", 17, 19),
    Sketcher.Constraint("Equal", 19, 21),
    Sketcher.Constraint("Equal", 21, 23),
    Sketcher.Constraint("Equal", 23, 25),
    Sketcher.Constraint("Equal", 25, 27),
    Sketcher.Constraint("Equal", 27, 29),
    Sketcher.Constraint("Equal", 29, 31),
    Sketcher.Constraint("Equal", 31, 33),
    Sketcher.Constraint("Equal", 33, 35),
    Sketcher.Constraint("Equal", 35, 37),
    Sketcher.Constraint("Equal", 37, 39),
    Sketcher.Constraint("Equal", 39, 41),
    Sketcher.Constraint("Equal", 41, 43),
    Sketcher.Constraint("Equal", 43, 45),
    Sketcher.Constraint("Equal", 45, 47),
    Sketcher.Constraint("Equal", 47, 49),
    Sketcher.Constraint("Equal", 49, 51),
    Sketcher.Constraint("Equal", 51, 53),
    Sketcher.Constraint("Equal", 53, 55),
    Sketcher.Constraint("Equal", 55, 57),
    Sketcher.Constraint("Equal", 57, 59),
    Sketcher.Constraint("Equal", 59, 61),
    Sketcher.Constraint("Equal", 61, 63),
    Sketcher.Constraint("Horizontal", 5, 3, 9, 3),
    Sketcher.Constraint("Horizontal", 7, 3, 11, 3),
    Sketcher.Constraint("Horizontal", 13, 3, 17, 3),
    Sketcher.Constraint("Horizontal", 15, 3, 19, 3),
    Sketcher.Constraint("Horizontal", 23, 3, 25, 3),
    Sketcher.Constraint("Horizontal", 21, 3, 27, 3),
    Sketcher.Constraint("Horizontal", 39, 3, 41, 3),
    Sketcher.Constraint("Horizontal", 37, 3, 43, 3),
    Sketcher.Constraint("Horizontal", 47, 3, 49, 3),
    Sketcher.Constraint("Horizontal", 45, 3, 51, 3),
    Sketcher.Constraint("Horizontal", 55, 3, 57, 3),
    Sketcher.Constraint("Horizontal", 53, 3, 59, 3),
    Sketcher.Constraint("Vertical", 3, 3, 33, 3),
    Sketcher.Constraint("Vertical", 7, 3, 37, 3),
    Sketcher.Constraint("Vertical", 19, 3, 41, 3),
    Sketcher.Constraint("Vertical", 23, 3, 45, 3),
    Sketcher.Constraint("Vertical", 27, 3, 49, 3),
    Sketcher.Constraint("Vertical", 31, 3, 53, 3),
    Sketcher.Constraint("Vertical", 15, 3, 57, 3),
    Sketcher.Constraint("Vertical", 11, 3, 61, 3),
    Sketcher.Constraint("Equal", 4, 8),
    Sketcher.Constraint("Equal", 12, 16),
    Sketcher.Constraint("Equal", 20, 24),
    Sketcher.Constraint("Equal", 60, 2),
    Sketcher.Constraint("Equal", 30, 34),
    Sketcher.Constraint("Radius", 1, Q("4 mm")),
    Sketcher.Constraint("DistanceX", 0, 1, 0, 2, Q("18 mm")),
    Sketcher.Constraint("DistanceX", 1, 3, -1, 1, Q("73.175406 mm")),
    Sketcher.Constraint("DistanceY", -1, 1, 1, 3, Q("29.079144 mm")),
    Sketcher.Constraint("DistanceX", 9, 3, -1, 1, Q("125.175406 mm")),
    Sketcher.Constraint("DistanceX", 17, 3, -1, 1, Q("39.175406 mm")),
    Sketcher.Constraint("DistanceX", 25, 3, -1, 1, Q("5.175406 mm")),
    Sketcher.Constraint("DistanceY", 33, 3, -1, 1, Q("4.920856 mm")),
])
sketch5.setExpression("Constraints[152]", "Params.sketch5_radius")
sketch5.setExpression("Constraints[153]", "Params.sketch5_width")
pocket4 = doc.addObject("PartDesign::Pocket", "Pocket003")
body.addObject(pocket4)
pocket4.Profile = sketch5
pocket4.Type = "ThroughAll"

# Sketch on XZ plane
sketch6 = doc.addObject("Sketcher::SketchObject", "Sketch005")
body.addObject(sketch6)
sketch6.AttachmentSupport = (doc.XZ_Plane, [""])
sketch6.MapMode = "FlatFace"
sketch6.AttachmentOffset = App.Placement(App.Vector(0, 0, -7), App.Rotation())
sketch6.addGeometry([
    Part.LineSegment(App.Vector(-8.175406, -17.920856, 0), App.Vector(-122.175406, -17.920856, 0)),
    Part.ArcOfCircle(Part.Circle(App.Vector(-122.175406, -25.920856, 0), App.Vector(0, 0, 1), 8), math.radians(90), math.radians(270)),
    Part.LineSegment(App.Vector(-122.175406, -33.920856, 0), App.Vector(-8.175406, -33.920856, 0)),
    Part.ArcOfCircle(Part.Circle(App.Vector(-8.175406, -25.920856, 0), App.Vector(0, 0, 1), 8), math.radians(-90), math.radians(90)),
], False)
sketch6.addConstraint([
    Sketcher.Constraint("Tangent", 0, 2, 1, 1),
    Sketcher.Constraint("Tangent", 1, 2, 2, 1),
    Sketcher.Constraint("Tangent", 2, 2, 3, 1),
    Sketcher.Constraint("Tangent", 3, 2, 0, 1),
    Sketcher.Constraint("Horizontal", 0),
    Sketcher.Constraint("Horizontal", 2),
    Sketcher.Constraint("Radius", 1, Q("8 mm")),
    Sketcher.Constraint("DistanceX", 0, 2, 0, 1, Q("114 mm")),
    Sketcher.Constraint("DistanceX", 1, 3, -1, 1, Q("122.175406 mm")),
    Sketcher.Constraint("DistanceY", 1, 3, -1, 1, Q("25.920856 mm")),
])
sketch6.setExpression("Constraints[6]", "Params.sketch6_radius")
sketch6.setExpression("Constraints[7]", "Params.sketch6_width")
pocket5 = doc.addObject("PartDesign::Pocket", "Pocket004")
body.addObject(pocket5)
pocket5.Profile = sketch6
pocket5.Type = "ThroughAll"

# Sketch on XZ plane
sketch7 = doc.addObject("Sketcher::SketchObject", "Sketch006")
body.addObject(sketch7)
sketch7.AttachmentSupport = (doc.XZ_Plane, [""])
sketch7.MapMode = "FlatFace"
sketch7.addGeometry([
    Part.Circle(App.Vector(-139.175406, -36.920856, 0), App.Vector(0, 0, 1), 2.75),
    Part.Circle(App.Vector(-139.175406, 71.079144, 0), App.Vector(0, 0, 1), 2.75),
    Part.Circle(App.Vector(8.824594, 71.079144, 0), App.Vector(0, 0, 1), 2.75),
    Part.Circle(App.Vector(8.824594, -36.920856, 0), App.Vector(0, 0, 1), 2.75),
], False)
sketch7.addConstraint([
    Sketcher.Constraint("Equal", 0, 1),
    Sketcher.Constraint("Equal", 1, 2),
    Sketcher.Constraint("Equal", 2, 3),
    Sketcher.Constraint("Horizontal", 1, 3, 2, 3),
    Sketcher.Constraint("Horizontal", 0, 3, 3, 3),
    Sketcher.Constraint("Vertical", 0, 3, 1, 3),
    Sketcher.Constraint("Vertical", 2, 3, 3, 3),
    Sketcher.Constraint("Diameter", 0, Q("5.5 mm")),
    Sketcher.Constraint("DistanceY", 0, 3, 1, 3, Q("108 mm")),
    Sketcher.Constraint("DistanceX", 1, 3, 2, 3, Q("148 mm")),
    Sketcher.Constraint("DistanceX", 0, 3, -1, 1, Q("139.175406 mm")),
    Sketcher.Constraint("DistanceY", 0, 3, -1, 1, Q("36.920856 mm")),
])
sketch7.setExpression("Constraints[7]", "Params.sketch7_diameter")
doc.recompute()
hole = doc.addObject("PartDesign::Hole", "Hole")
body.addObject(hole)
hole.Profile = sketch7
hole.ThreadType = "None"
hole.setExpression("Diameter", "Params.hole_diameter")
hole.DepthType = "ThroughAll"

# Sketch on XZ plane
sketch8 = doc.addObject("Sketcher::SketchObject", "Sketch007")
body.addObject(sketch8)
sketch8.AttachmentSupport = (doc.XZ_Plane, [""])
sketch8.MapMode = "FlatFace"
sketch8.AttachmentOffset = App.Placement(App.Vector(0, 0, -13), App.Rotation())
sketch8.addGeometry([
    Part.LineSegment(App.Vector(-133.675406, 62.879144, 0), App.Vector(3.324594, 62.879144, 0)),  # 0
    Part.ArcOfCircle(Part.Circle(App.Vector(3.324594, 61.879144, 0), App.Vector(0, 0, 1), 1), math.radians(0), math.radians(90)),  # 1
    Part.LineSegment(App.Vector(4.324594, 61.879144, 0), App.Vector(4.324594, -22.920856, 0)),  # 2
    Part.ArcOfCircle(Part.Circle(App.Vector(3.324594, -22.920856, 0), App.Vector(0, 0, 1), 1), math.radians(-90), math.radians(0)),  # 3
    Part.LineSegment(App.Vector(3.324594, -23.920856, 0), App.Vector(-133.675406, -23.920856, 0)),  # 4
    Part.ArcOfCircle(Part.Circle(App.Vector(-133.675406, -22.920856, 0), App.Vector(0, 0, 1), 1), math.radians(-180), math.radians(-90)),  # 5
    Part.LineSegment(App.Vector(-134.675406, -22.920856, 0), App.Vector(-134.675406, 61.879144, 0)),  # 6
    Part.ArcOfCircle(Part.Circle(App.Vector(-133.675406, 61.879144, 0), App.Vector(0, 0, 1), 1), math.radians(90), math.radians(180)),  # 7
], False)
sketch8.addConstraint([
    Sketcher.Constraint("Tangent", 0, 2, 1, 2),
    Sketcher.Constraint("Tangent", 1, 1, 2, 1),
    Sketcher.Constraint("Tangent", 2, 2, 3, 2),
    Sketcher.Constraint("Tangent", 3, 1, 4, 1),
    Sketcher.Constraint("Tangent", 4, 2, 5, 2),
    Sketcher.Constraint("Tangent", 5, 1, 6, 1),
    Sketcher.Constraint("Tangent", 6, 2, 7, 2),
    Sketcher.Constraint("Tangent", 7, 1, 0, 1),
    Sketcher.Constraint("Horizontal", 0),
    Sketcher.Constraint("Vertical", 2),
    Sketcher.Constraint("Horizontal", 4),
    Sketcher.Constraint("Vertical", 6),
    Sketcher.Constraint("Equal", 1, 3),
    Sketcher.Constraint("Equal", 3, 5),
    Sketcher.Constraint("Equal", 5, 7),
    Sketcher.Constraint("Radius", 1, Q("1 mm")),
    Sketcher.Constraint("DistanceX", 0, 1, 0, 2, Q("137 mm")),
    Sketcher.Constraint("DistanceY", 2, 2, 2, 1, Q("84.8 mm")),
    Sketcher.Constraint("DistanceX", -1, 1, 1, 3, Q("3.324594 mm")),
    Sketcher.Constraint("DistanceY", -1, 1, 1, 3, Q("61.879144 mm")),
])
sketch8.setExpression("Constraints[15]", "Params.sketch8_radius")
sketch8.setExpression("Constraints[16]", "Params.sketch8_width")
sketch8.setExpression("Constraints[17]", "Params.sketch8_height")
pocket6 = doc.addObject("PartDesign::Pocket", "Pocket005")
body.addObject(pocket6)
pocket6.Profile = sketch8
pocket6.setExpression("Length", "Params.pocket6_length")
pocket6.Reversed = True

# Sketch on XZ plane
sketch9 = doc.addObject("Sketcher::SketchObject", "Sketch008")
body.addObject(sketch9)
sketch9.AttachmentSupport = (doc.XZ_Plane, [""])
sketch9.MapMode = "FlatFace"
sketch9.AttachmentOffset = App.Placement(App.Vector(0, 0, -11.3), App.Rotation())
sketch9.addGeometry([
    Part.Circle(App.Vector(0.324594, 58.879144, 0), App.Vector(0, 0, 1), 1.25),
    Part.Circle(App.Vector(-130.675406, 58.879144, 0), App.Vector(0, 0, 1), 1.25),
    Part.Circle(App.Vector(-130.675406, -15.920856, 0), App.Vector(0, 0, 1), 1.25),
    Part.Circle(App.Vector(0.324594, -15.920856, 0), App.Vector(0, 0, 1), 1.25),
], False)
sketch9.addConstraint([
    Sketcher.Constraint("Equal", 0, 1),
    Sketcher.Constraint("Equal", 1, 2),
    Sketcher.Constraint("Equal", 2, 3),
    Sketcher.Constraint("Horizontal", 0, 3, 1, 3),
    Sketcher.Constraint("Horizontal", 2, 3, 3, 3),
    Sketcher.Constraint("Vertical", 1, 3, 2, 3),
    Sketcher.Constraint("Vertical", 0, 3, 3, 3),
    Sketcher.Constraint("Diameter", 0, Q("2.5 mm")),
    Sketcher.Constraint("DistanceX", 1, 3, 0, 3, Q("131 mm")),
    Sketcher.Constraint("DistanceY", 2, 3, 1, 3, Q("74.8 mm")),
    Sketcher.Constraint("DistanceX", -1, 1, 0, 3, Q("0.324594 mm")),
    Sketcher.Constraint("DistanceY", -1, 1, 0, 3, Q("58.879144 mm")),
])
sketch9.setExpression("Constraints[7]", "Params.sketch9_diameter")
doc.recompute()
hole2 = doc.addObject("PartDesign::Hole", "Hole001")
body.addObject(hole2)
hole2.Profile = sketch9
hole2.ThreadType = "None"
hole2.setExpression("Diameter", "Params.hole2_diameter")
hole2.DepthType = "Dimension"
hole2.setExpression("Depth", "Params.hole2_depth")
hole2.DrillPoint = "Angled"
hole2.DrillPointAngle = 118
hole2.Reversed = True

doc.recompute()
